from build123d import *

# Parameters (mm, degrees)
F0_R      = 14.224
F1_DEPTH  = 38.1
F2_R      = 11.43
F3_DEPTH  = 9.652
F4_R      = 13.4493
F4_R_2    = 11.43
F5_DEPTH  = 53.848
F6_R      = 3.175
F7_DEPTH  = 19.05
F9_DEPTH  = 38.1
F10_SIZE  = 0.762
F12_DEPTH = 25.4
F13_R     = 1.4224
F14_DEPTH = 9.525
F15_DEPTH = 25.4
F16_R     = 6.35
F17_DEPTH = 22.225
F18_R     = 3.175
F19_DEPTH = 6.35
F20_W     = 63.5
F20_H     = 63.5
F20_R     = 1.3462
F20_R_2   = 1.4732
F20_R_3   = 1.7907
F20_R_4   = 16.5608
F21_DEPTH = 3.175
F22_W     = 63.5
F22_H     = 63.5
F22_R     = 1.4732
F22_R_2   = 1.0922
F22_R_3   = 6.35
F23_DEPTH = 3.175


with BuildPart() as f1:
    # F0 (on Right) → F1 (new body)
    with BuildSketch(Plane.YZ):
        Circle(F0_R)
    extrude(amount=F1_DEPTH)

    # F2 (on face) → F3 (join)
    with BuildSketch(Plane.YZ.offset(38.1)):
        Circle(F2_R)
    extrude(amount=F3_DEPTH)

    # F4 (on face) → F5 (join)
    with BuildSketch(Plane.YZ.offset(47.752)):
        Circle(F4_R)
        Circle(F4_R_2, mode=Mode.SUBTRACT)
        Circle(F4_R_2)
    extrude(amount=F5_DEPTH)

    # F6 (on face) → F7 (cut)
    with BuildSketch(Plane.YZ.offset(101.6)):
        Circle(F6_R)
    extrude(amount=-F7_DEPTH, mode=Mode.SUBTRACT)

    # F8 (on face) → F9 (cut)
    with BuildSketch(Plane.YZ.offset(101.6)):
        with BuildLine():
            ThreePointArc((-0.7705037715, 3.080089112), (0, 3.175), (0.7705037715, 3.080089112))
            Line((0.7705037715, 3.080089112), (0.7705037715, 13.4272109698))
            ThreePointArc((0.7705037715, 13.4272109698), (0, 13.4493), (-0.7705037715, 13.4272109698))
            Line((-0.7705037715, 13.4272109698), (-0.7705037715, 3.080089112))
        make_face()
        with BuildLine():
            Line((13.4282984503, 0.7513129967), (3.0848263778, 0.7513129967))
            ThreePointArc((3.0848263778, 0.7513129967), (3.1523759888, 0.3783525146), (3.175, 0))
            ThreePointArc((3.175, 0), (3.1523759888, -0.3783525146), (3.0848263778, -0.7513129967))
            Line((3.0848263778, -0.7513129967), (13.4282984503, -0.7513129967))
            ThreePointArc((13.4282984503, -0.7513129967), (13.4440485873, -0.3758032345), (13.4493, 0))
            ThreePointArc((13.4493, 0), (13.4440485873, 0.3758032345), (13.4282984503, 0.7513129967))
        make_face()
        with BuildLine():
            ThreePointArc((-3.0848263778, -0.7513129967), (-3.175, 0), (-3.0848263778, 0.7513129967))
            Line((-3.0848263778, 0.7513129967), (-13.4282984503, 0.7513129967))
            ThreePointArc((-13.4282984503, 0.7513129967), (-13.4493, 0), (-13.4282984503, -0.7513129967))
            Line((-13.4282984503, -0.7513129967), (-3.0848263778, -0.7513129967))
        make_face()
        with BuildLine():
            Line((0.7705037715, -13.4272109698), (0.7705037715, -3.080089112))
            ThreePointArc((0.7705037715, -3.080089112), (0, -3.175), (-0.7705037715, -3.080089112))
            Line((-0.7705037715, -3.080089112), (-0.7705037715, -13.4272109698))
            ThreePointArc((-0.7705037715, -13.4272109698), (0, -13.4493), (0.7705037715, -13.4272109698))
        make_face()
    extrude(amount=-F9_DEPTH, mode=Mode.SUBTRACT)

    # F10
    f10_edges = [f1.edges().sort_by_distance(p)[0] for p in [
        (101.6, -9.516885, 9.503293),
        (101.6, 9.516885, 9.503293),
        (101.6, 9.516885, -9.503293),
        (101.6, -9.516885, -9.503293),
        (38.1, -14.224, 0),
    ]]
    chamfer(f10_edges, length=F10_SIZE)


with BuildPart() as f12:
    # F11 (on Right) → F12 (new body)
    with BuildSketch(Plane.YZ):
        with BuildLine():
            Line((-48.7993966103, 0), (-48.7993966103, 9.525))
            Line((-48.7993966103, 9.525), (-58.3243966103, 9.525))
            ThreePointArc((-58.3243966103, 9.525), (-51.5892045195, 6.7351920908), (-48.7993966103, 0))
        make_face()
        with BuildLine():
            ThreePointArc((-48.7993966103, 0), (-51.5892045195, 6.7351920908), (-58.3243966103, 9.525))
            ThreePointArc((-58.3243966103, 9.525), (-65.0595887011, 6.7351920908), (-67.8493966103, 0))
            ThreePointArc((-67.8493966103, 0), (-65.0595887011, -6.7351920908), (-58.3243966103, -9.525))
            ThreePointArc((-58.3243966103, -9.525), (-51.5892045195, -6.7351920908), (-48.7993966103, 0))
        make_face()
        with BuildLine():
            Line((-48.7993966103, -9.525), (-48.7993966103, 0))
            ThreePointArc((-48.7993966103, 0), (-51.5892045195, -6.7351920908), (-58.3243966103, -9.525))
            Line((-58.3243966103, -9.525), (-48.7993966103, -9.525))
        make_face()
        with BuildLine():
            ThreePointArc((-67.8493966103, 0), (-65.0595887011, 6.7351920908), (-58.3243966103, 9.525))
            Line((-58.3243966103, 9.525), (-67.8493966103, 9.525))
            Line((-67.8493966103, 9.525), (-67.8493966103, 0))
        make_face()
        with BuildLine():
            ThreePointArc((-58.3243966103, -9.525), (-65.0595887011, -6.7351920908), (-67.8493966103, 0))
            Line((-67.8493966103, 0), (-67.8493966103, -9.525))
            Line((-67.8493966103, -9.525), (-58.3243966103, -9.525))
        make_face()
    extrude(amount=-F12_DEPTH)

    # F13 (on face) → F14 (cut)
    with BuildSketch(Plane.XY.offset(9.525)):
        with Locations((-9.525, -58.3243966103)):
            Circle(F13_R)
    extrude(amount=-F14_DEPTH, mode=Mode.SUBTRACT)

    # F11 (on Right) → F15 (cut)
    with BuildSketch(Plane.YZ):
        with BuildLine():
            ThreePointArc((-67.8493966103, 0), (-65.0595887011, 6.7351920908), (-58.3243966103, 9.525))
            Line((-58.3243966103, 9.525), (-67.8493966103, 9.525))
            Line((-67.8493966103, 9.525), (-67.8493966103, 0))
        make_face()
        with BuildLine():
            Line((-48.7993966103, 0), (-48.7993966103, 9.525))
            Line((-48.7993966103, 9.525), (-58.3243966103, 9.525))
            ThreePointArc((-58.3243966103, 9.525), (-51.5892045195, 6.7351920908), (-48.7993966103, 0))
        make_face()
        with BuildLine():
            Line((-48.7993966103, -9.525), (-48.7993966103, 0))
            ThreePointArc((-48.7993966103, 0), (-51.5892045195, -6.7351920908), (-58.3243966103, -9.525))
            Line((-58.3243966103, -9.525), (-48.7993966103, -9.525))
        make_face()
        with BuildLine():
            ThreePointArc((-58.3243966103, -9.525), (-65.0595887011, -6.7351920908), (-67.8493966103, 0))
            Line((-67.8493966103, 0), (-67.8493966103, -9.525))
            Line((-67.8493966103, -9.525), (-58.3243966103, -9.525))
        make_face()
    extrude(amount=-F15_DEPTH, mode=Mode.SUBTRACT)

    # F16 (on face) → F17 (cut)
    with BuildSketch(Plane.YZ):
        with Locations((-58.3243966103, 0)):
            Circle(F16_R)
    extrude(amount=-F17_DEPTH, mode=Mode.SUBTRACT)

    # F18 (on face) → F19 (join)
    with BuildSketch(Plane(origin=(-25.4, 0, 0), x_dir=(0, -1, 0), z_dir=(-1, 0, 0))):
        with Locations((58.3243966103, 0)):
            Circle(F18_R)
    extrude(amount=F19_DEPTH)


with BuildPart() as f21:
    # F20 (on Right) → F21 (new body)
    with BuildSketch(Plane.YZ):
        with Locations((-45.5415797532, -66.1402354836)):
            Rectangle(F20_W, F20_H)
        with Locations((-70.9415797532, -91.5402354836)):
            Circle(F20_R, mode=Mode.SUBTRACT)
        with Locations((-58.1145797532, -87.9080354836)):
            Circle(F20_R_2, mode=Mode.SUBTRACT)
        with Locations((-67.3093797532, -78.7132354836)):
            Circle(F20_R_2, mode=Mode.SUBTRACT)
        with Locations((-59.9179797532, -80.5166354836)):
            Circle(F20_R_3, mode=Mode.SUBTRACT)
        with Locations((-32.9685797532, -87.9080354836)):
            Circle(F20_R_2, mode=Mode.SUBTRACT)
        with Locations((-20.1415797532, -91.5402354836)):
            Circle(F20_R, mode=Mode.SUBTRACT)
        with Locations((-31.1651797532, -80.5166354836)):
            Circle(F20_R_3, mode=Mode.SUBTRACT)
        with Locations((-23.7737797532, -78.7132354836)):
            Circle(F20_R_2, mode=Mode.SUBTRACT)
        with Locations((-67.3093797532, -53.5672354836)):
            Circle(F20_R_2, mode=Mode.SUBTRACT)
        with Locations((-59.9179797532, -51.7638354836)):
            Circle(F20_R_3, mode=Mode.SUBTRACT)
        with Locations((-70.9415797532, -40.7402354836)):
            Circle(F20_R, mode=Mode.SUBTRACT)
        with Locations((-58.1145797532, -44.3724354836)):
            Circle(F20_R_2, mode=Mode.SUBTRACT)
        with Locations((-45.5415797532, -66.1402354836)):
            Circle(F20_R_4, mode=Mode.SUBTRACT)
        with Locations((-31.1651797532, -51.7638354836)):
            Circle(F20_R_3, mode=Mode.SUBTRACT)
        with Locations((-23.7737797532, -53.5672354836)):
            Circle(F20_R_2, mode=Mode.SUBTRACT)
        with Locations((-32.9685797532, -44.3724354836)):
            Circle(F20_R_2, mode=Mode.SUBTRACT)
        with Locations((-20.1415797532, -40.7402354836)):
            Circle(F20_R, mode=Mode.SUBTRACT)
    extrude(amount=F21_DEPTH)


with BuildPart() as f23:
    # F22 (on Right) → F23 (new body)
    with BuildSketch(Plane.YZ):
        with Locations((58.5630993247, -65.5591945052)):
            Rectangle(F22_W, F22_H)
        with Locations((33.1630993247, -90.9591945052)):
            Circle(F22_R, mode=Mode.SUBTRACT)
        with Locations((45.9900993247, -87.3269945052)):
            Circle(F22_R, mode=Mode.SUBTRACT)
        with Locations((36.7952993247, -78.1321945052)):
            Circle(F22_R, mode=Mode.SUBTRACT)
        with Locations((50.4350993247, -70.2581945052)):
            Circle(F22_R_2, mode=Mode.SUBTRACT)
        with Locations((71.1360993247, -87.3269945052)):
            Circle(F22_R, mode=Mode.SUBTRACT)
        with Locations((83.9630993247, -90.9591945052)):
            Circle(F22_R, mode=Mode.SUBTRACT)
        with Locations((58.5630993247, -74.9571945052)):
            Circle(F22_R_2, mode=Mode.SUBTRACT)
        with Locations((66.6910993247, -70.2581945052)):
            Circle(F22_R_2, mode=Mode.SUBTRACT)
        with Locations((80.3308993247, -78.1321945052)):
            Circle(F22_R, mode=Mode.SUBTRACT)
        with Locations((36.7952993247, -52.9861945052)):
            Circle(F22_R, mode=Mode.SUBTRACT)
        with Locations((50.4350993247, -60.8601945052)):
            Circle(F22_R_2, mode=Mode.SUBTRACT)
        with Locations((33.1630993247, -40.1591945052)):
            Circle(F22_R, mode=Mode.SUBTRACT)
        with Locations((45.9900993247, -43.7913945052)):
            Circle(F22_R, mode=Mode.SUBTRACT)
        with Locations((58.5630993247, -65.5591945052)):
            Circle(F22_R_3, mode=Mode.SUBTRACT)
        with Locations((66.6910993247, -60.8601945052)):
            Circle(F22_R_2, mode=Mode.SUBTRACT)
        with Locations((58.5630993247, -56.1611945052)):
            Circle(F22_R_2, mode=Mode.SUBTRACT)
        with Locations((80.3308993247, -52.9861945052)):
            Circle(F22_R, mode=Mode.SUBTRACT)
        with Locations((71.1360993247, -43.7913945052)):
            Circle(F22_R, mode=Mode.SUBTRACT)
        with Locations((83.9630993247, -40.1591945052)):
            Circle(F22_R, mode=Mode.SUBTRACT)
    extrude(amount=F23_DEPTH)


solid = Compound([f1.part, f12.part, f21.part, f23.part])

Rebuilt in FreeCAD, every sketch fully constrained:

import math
import FreeCAD as App
import Part
import Sketcher
from FreeCAD import Vector
Q = App.Units.Quantity


def edges_at(feature, points):
    """Names of the edges that pass closest to the given points."""
    edges = feature.Shape.Edges
    near = lambda p: min(range(len(edges)), key=lambda i: edges[i].distToShape(Part.Vertex(*p))[0])
    return sorted({f"Edge{near(p) + 1}" for p in points})

doc = App.newDocument("Part")
body = doc.addObject("PartDesign::Body", "Body")

sketch1 = body.newObject("Sketcher::SketchObject", "Sketch")
sketch1.AttachmentSupport = (doc.getObject("YZ_Plane"), [""])
sketch1.MapMode = "FlatFace"
sketch1.addGeometry(Part.Circle(Vector(0, 0, 0), Vector(0, 0, 1), 14.224), False)
sketch1.addConstraint(Sketcher.Constraint("Coincident", 0, 3, -1, 1))
sketch1.addConstraint(Sketcher.Constraint("Diameter", 0, Q("1.12 in")))
pad1 = body.newObject("PartDesign::Pad", "Pad")
pad1.Profile = sketch1
pad1.Length = Q("1.5 in")

sketch2 = body.newObject("Sketcher::SketchObject", "Sketch001")
sketch2.AttachmentSupport = (doc.getObject("YZ_Plane"), [""])
sketch2.MapMode = "FlatFace"
sketch2.AttachmentOffset = App.Placement(Vector(0, 0, 1.5 * 25.4), App.Rotation())
sketch2.addGeometry(Part.Circle(Vector(0, 0, 0), Vector(0, 0, 1), 11.43), False)
sketch2.addConstraint(Sketcher.Constraint("Coincident", 0, 3, -1, 1))
sketch2.addConstraint(Sketcher.Constraint("Diameter", 0, Q("0.9 in")))
pad2 = body.newObject("PartDesign::Pad", "Pad001")
pad2.Profile = sketch2
pad2.Length = Q("0.38 in")

sketch3 = body.newObject("Sketcher::SketchObject", "Sketch002")
sketch3.AttachmentSupport = (doc.getObject("YZ_Plane"), [""])
sketch3.MapMode = "FlatFace"
sketch3.AttachmentOffset = App.Placement(Vector(0, 0, 1.88 * 25.4), App.Rotation())
sketch3.addGeometry(Part.Circle(Vector(0, 0, 0), Vector(0, 0, 1), 13.4493), False)
sketch3.addConstraint(Sketcher.Constraint("Coincident", 0, 3, -1, 1))
sketch3.addConstraint(Sketcher.Constraint("Diameter", 0, Q("1.059 in")))
pad3 = body.newObject("PartDesign::Pad", "Pad002")
pad3.Profile = sketch3
pad3.Length = Q("2.12 in")

sketch4 = body.newObject("Sketcher::SketchObject", "Sketch003")
sketch4.AttachmentSupport = (doc.getObject("YZ_Plane"), [""])
sketch4.MapMode = "FlatFace"
sketch4.AttachmentOffset = App.Placement(Vector(0, 0, 4 * 25.4), App.Rotation())
sketch4.addGeometry(Part.Circle(Vector(0, 0, 0), Vector(0, 0, 1), 3.175), False)
sketch4.addConstraint(Sketcher.Constraint("Coincident", 0, 3, -1, 1))
sketch4.addConstraint(Sketcher.Constraint("Diameter", 0, Q("0.25 in")))
pocket1 = body.newObject("PartDesign::Pocket", "Pocket")
pocket1.Profile = sketch4
pocket1.Length = Q("0.75 in")

sketch5 = body.newObject("Sketcher::SketchObject", "Sketch004")
sketch5.AttachmentSupport = (doc.getObject("YZ_Plane"), [""])
sketch5.MapMode = "FlatFace"
sketch5.AttachmentOffset = App.Placement(Vector(0, 0, 4 * 25.4), App.Rotation())
sketch5.addGeometry(Part.ArcOfCircle(Part.Circle(Vector(0, 0, 0), Vector(0, 0, 1), 3.175), math.radians(75.955327), math.radians(104.044673)), False)
sketch5.addGeometry(Part.LineSegment(Vector(0.770504, 3.080089, 0), Vector(0.770504, 13.427211, 0)), False)
sketch5.addGeometry(Part.ArcOfCircle(Part.Circle(Vector(0, 0, 0), Vector(0, 0, 1), 13.4493), math.radians(86.715755), math.radians(93.284245)), False)
sketch5.addGeometry(Part.LineSegment(Vector(-0.770504, 13.427211, 0), Vector(-0.770504, 3.080089, 0)), False)
sketch5.addGeometry(Part.LineSegment(Vector(13.428298, 0.751313, 0), Vector(3.084826, 0.751313, 0)), False)
sketch5.addGeometry(Part.ArcOfCircle(Part.Circle(Vector(0, 0, 0), Vector(0, 0, 1), 3.175), math.radians(0), math.radians(13.687962)), False)
sketch5.addGeometry(Part.ArcOfCircle(Part.Circle(Vector(0, 0, 0), Vector(0, 0, 1), 3.175), math.radians(-13.687962), math.radians(0)), False)
sketch5.addGeometry(Part.LineSegment(Vector(3.084826, -0.751313, 0), Vector(13.428298, -0.751313, 0)), False)
sketch5.addGeometry(Part.ArcOfCircle(Part.Circle(Vector(0, 0, 0), Vector(0, 0, 1), 13.4493), math.radians(-3.202359), math.radians(0)), False)
sketch5.addGeometry(Part.ArcOfCircle(Part.Circle(Vector(0, 0, 0), Vector(0, 0, 1), 13.4493), math.radians(0), math.radians(3.202359)), False)
sketch5.addGeometry(Part.ArcOfCircle(Part.Circle(Vector(0, 0, 0), Vector(0, 0, 1), 3.175), math.radians(166.312038), math.radians(193.687962)), False)
sketch5.addGeometry(Part.LineSegment(Vector(-3.084826, 0.751313, 0), Vector(-13.428298, 0.751313, 0)), False)
sketch5.addGeometry(Part.ArcOfCircle(Part.Circle(Vector(0, 0, 0), Vector(0, 0, 1), 13.4493), math.radians(176.797641), math.radians(183.202359)), False)
sketch5.addGeometry(Part.LineSegment(Vector(-13.428298, -0.751313, 0), Vector(-3.084826, -0.751313, 0)), False)
sketch5.addGeometry(Part.LineSegment(Vector(0.770504, -13.427211, 0), Vector(0.770504, -3.080089, 0)), False)
sketch5.addGeometry(Part.ArcOfCircle(Part.Circle(Vector(0, 0, 0), Vector(0, 0, 1), 3.175), math.radians(-104.044673), math.radians(-75.955327)), False)
sketch5.addGeometry(Part.LineSegment(Vector(-0.770504, -3.080089, 0), Vector(-0.770504, -13.427211, 0)), False)
sketch5.addGeometry(Part.ArcOfCircle(Part.Circle(Vector(0, 0, 0), Vector(0, 0, 1), 13.4493), math.radians(-93.284245), math.radians(-86.715755)), False)
sketch5.addConstraint(Sketcher.Constraint("Coincident", 0, 1, 1, 1))
sketch5.addConstraint(Sketcher.Constraint("Coincident", 1, 2, 2, 1))
sketch5.addConstraint(Sketcher.Constraint("Coincident", 2, 2, 3, 1))
sketch5.addConstraint(Sketcher.Constraint("Coincident", 3, 2, 0, 2))
sketch5.addConstraint(Sketcher.Constraint("Coincident", 4, 2, 5, 2))
sketch5.addConstraint(Sketcher.Constraint("Tangent", 5, 1, 6, 2))
sketch5.addConstraint(Sketcher.Constraint("Coincident", 6, 1, 7, 1))
sketch5.addConstraint(Sketcher.Constraint("Coincident", 7, 2, 8, 1))
sketch5.addConstraint(Sketcher.Constraint("Tangent", 8, 2, 9, 1))
sketch5.addConstraint(Sketcher.Constraint("Coincident", 9, 2, 4, 1))
sketch5.addConstraint(Sketcher.Constraint("Coincident", 10, 1, 11, 1))
sketch5.addConstraint(Sketcher.Constraint("Coincident", 11, 2, 12, 1))
sketch5.addConstraint(Sketcher.Constraint("Coincident", 12, 2, 13, 1))
sketch5.addConstraint(Sketcher.Constraint("Coincident", 13, 2, 10, 2))
sketch5.addConstraint(Sketcher.Constraint("Coincident", 14, 2, 15, 2))
sketch5.addConstraint(Sketcher.Constraint("Coincident", 15, 1, 16, 1))
sketch5.addConstraint(Sketcher.Constraint("Coincident", 16, 2, 17, 1))
sketch5.addConstraint(Sketcher.Constraint("Coincident", 17, 2, 14, 1))
sketch5.addConstraint(Sketcher.Constraint("Vertical", 1))
sketch5.addConstraint(Sketcher.Constraint("Vertical", 3))
sketch5.addConstraint(Sketcher.Constraint("Horizontal", 4))
sketch5.addConstraint(Sketcher.Constraint("Horizontal", 7))
sketch5.addConstraint(Sketcher.Constraint("Horizontal", 11))
sketch5.addConstraint(Sketcher.Constraint("Horizontal", 13))
sketch5.addConstraint(Sketcher.Constraint("Vertical", 14))
sketch5.addConstraint(Sketcher.Constraint("Vertical", 16))
sketch5.addConstraint(Sketcher.Constraint("Coincident", 0, 3, -1, 1))
sketch5.addConstraint(Sketcher.Constraint("Coincident", 2, 3, -1, 1))
sketch5.addConstraint(Sketcher.Constraint("Coincident", 5, 3, -1, 1))
sketch5.addConstraint(Sketcher.Constraint("Coincident", 8, 3, -1, 1))
sketch5.addConstraint(Sketcher.Constraint("Coincident", 10, 3, -1, 1))
sketch5.addConstraint(Sketcher.Constraint("Coincident", 12, 3, -1, 1))
sketch5.addConstraint(Sketcher.Constraint("Coincident", 15, 3, -1, 1))
sketch5.addConstraint(Sketcher.Constraint("Coincident", 17, 3, -1, 1))
sketch5.addConstraint(Sketcher.Constraint("Equal", 0, 5))
sketch5.addConstraint(Sketcher.Constraint("Equal", 5, 6))
sketch5.addConstraint(Sketcher.Constraint("Equal", 2, 8))
sketch5.addConstraint(Sketcher.Constraint("Equal", 8, 9))
sketch5.addConstraint(Sketcher.Constraint("Equal", 6, 10))
sketch5.addConstraint(Sketcher.Constraint("Equal", 9, 12))
sketch5.addConstraint(Sketcher.Constraint("Equal", 10, 15))
sketch5.addConstraint(Sketcher.Constraint("Equal", 12, 17))
sketch5.addConstraint(Sketcher.Constraint("PointOnObject", 5, 1, -1))
sketch5.addConstraint(Sketcher.Constraint("PointOnObject", 8, 2, -1))
sketch5.addConstraint(Sketcher.Constraint("Horizontal", 1, 2, 2, 2))
sketch5.addConstraint(Sketcher.Constraint("Horizontal", 9, 2, 10, 1))
sketch5.addConstraint(Sketcher.Constraint("Horizontal", 7, 2, 12, 2))
sketch5.addConstraint(Sketcher.Constraint("Horizontal", 14, 2, 15, 1))
sketch5.addConstraint(Sketcher.Constraint("Vertical", 4, 2, 6, 1))
sketch5.addConstraint(Sketcher.Constraint("Vertical", 1, 2, 14, 2))
sketch5.addConstraint(Sketcher.Constraint("Radius", 0, Q("0.125 in")))
sketch5.addConstraint(Sketcher.Constraint("Radius", 2, Q("0.5295 in")))
sketch5.addConstraint(Sketcher.Constraint("DistanceY", 1, 1, 1, 2, 10.347122))
sketch5.addConstraint(Sketcher.Constraint("DistanceX", -1, 1, 7, 2, 13.428298))
pocket2 = body.newObject("PartDesign::Pocket", "Pocket001")
pocket2.Profile = sketch5
pocket2.Length = Q("1.5 in")
doc.recompute()

chamfer = body.newObject("PartDesign::Chamfer", "Chamfer")
chamfer.Base = (pocket2, edges_at(pocket2, [
    (101.6, -9.517, 9.503),
    (101.6, 9.517, 9.503),
    (101.6, 9.517, -9.503),
    (101.6, -9.517, -9.503),
    (38.1, -14.224, 0),
]))
chamfer.Size = Q("0.03 in")
body2 = doc.addObject("PartDesign::Body", "Body001")

sketch6 = body2.newObject("Sketcher::SketchObject", "Sketch005")
sketch6.AttachmentSupport = (doc.getObject("YZ_Plane001"), [""])
sketch6.MapMode = "FlatFace"
sketch6.addGeometry(Part.LineSegment(Vector(-48.799397, 9.525, 0), Vector(-67.849397, 9.525, 0)), False)
sketch6.addGeometry(Part.LineSegment(Vector(-67.849397, 9.525, 0), Vector(-67.849397, -9.525, 0)), False)
sketch6.addGeometry(Part.LineSegment(Vector(-67.849397, -9.525, 0), Vector(-48.799397, -9.525, 0)), False)
sketch6.addGeometry(Part.LineSegment(Vector(-48.799397, -9.525, 0), Vector(-48.799397, 9.525, 0)), False)
sketch6.addConstraint(Sketcher.Constraint("Coincident", 0, 2, 1, 1))
sketch6.addConstraint(Sketcher.Constraint("Coincident", 1, 2, 2, 1))
sketch6.addConstraint(Sketcher.Constraint("Coincident", 2, 2, 3, 1))
sketch6.addConstraint(Sketcher.Constraint("Coincident", 3, 2, 0, 1))
sketch6.addConstraint(Sketcher.Constraint("Horizontal", 0))
sketch6.addConstraint(Sketcher.Constraint("Vertical", 1))
sketch6.addConstraint(Sketcher.Constraint("Horizontal", 2))
sketch6.addConstraint(Sketcher.Constraint("Vertical", 3))
sketch6.addConstraint(Sketcher.Constraint("Equal", 2, 1))
sketch6.addConstraint(Sketcher.Constraint("DistanceX", 0, 2, 0, 1, Q("0.75 in")))
sketch6.addConstraint(Sketcher.Constraint("DistanceY", -1, 1, 0, 2, Q("0.375 in")))
sketch6.addConstraint(Sketcher.Constraint("DistanceX", 0, 2, -1, 1, 67.849397))
pad4 = body2.newObject("PartDesign::Pad", "Pad003")
pad4.Profile = sketch6
pad4.Length = Q("1 in")
pad4.Reversed = True

sketch7 = body2.newObject("Sketcher::SketchObject", "Sketch006")
sketch7.AttachmentSupport = (doc.getObject("XY_Plane001"), [""])
sketch7.MapMode = "FlatFace"
sketch7.AttachmentOffset = App.Placement(Vector(0, 0, 0.375 * 25.4), App.Rotation())
sketch7.addGeometry(Part.Circle(Vector(-9.525, -58.324397, 0), Vector(0, 0, 1), 1.4224), False)
sketch7.addConstraint(Sketcher.Constraint("Diameter", 0, Q("0.112 in")))
sketch7.addConstraint(Sketcher.Constraint("DistanceX", 0, 3, -1, 1, Q("0.375 in")))
sketch7.addConstraint(Sketcher.Constraint("DistanceY", 0, 3, -1, 1, 58.324397))
pocket3 = body2.newObject("PartDesign::Pocket", "Pocket002")
pocket3.Profile = sketch7
pocket3.Length = Q("0.375 in")

sketch8 = body2.newObject("Sketcher::SketchObject", "Sketch007")
sketch8.AttachmentSupport = (doc.getObject("YZ_Plane001"), [""])
sketch8.MapMode = "FlatFace"
sketch8.addGeometry(Part.ArcOfCircle(Part.Circle(Vector(-58.324397, 0, 0), Vector(0, 0, 1), 9.525), math.radians(90), math.radians(180)), False)
sketch8.addGeometry(Part.LineSegment(Vector(-58.324397, 9.525, 0), Vector(-67.849397, 9.525, 0)), False)
sketch8.addGeometry(Part.LineSegment(Vector(-67.849397, 9.525, 0), Vector(-67.849397, 0, 0)), False)
sketch8.addGeometry(Part.LineSegment(Vector(-48.799397, 0, 0), Vector(-48.799397, 9.525, 0)), False)
sketch8.addGeometry(Part.LineSegment(Vector(-48.799397, 9.525, 0), Vector(-58.324397, 9.525, 0)), False)
sketch8.addGeometry(Part.ArcOfCircle(Part.Circle(Vector(-58.324397, 0, 0), Vector(0, 0, 1), 9.525), math.radians(0), math.radians(90)), False)
sketch8.addGeometry(Part.LineSegment(Vector(-48.799397, -9.525, 0), Vector(-48.799397, 0, 0)), False)
sketch8.addGeometry(Part.ArcOfCircle(Part.Circle(Vector(-58.324397, 0, 0), Vector(0, 0, 1), 9.525), math.radians(-90), math.radians(0)), False)
sketch8.addGeometry(Part.LineSegment(Vector(-58.324397, -9.525, 0), Vector(-48.799397, -9.525, 0)), False)
sketch8.addGeometry(Part.ArcOfCircle(Part.Circle(Vector(-58.324397, 0, 0), Vector(0, 0, 1), 9.525), math.radians(180), math.radians(270)), False)
sketch8.addGeometry(Part.LineSegment(Vector(-67.849397, 0, 0), Vector(-67.849397, -9.525, 0)), False)
sketch8.addGeometry(Part.LineSegment(Vector(-67.849397, -9.525, 0), Vector(-58.324397, -9.525, 0)), False)
sketch8.addConstraint(Sketcher.Constraint("Tangent", 0, 1, 1, 1))
sketch8.addConstraint(Sketcher.Constraint("Coincident", 1, 2, 2, 1))
sketch8.addConstraint(Sketcher.Constraint("Tangent", 2, 2, 0, 2))
sketch8.addConstraint(Sketcher.Constraint("Coincident", 3, 2, 4, 1))
sketch8.addConstraint(Sketcher.Constraint("Tangent", 4, 2, 5, 2))
sketch8.addConstraint(Sketcher.Constraint("Tangent", 5, 1, 3, 1))
sketch8.addConstraint(Sketcher.Constraint("Tangent", 6, 2, 7, 2))
sketch8.addConstraint(Sketcher.Constraint("Tangent", 7, 1, 8, 1))
sketch8.addConstraint(Sketcher.Constraint("Coincident", 8, 2, 6, 1))
sketch8.addConstraint(Sketcher.Constraint("Tangent", 9, 1, 10, 1))
sketch8.addConstraint(Sketcher.Constraint("Coincident", 10, 2, 11, 1))
sketch8.addConstraint(Sketcher.Constraint("Tangent", 11, 2, 9, 2))
sketch8.addConstraint(Sketcher.Constraint("Horizontal", 1))
sketch8.addConstraint(Sketcher.Constraint("Vertical", 2))
sketch8.addConstraint(Sketcher.Constraint("Vertical", 3))
sketch8.addConstraint(Sketcher.Constraint("Horizontal", 4))
sketch8.addConstraint(Sketcher.Constraint("Vertical", 6))
sketch8.addConstraint(Sketcher.Constraint("Horizontal", 8))
sketch8.addConstraint(Sketcher.Constraint("Vertical", 10))
sketch8.addConstraint(Sketcher.Constraint("Horizontal", 11))
sketch8.addConstraint(Sketcher.Constraint("Coincident", 5, 3, 0, 3))
sketch8.addConstraint(Sketcher.Constraint("Coincident", 7, 3, 0, 3))
sketch8.addConstraint(Sketcher.Constraint("Coincident", 9, 3, 0, 3))
sketch8.addConstraint(Sketcher.Constraint("Equal", 0, 5))
sketch8.addConstraint(Sketcher.Constraint("Equal", 5, 7))
sketch8.addConstraint(Sketcher.Constraint("Equal", 7, 9))
sketch8.addConstraint(Sketcher.Constraint("PointOnObject", 0, 3, -1))
sketch8.addConstraint(Sketcher.Constraint("Radius", 0, Q("0.375 in")))
sketch8.addConstraint(Sketcher.Constraint("DistanceX", 0, 3, -1, 1, 58.324397))
pocket4 = body2.newObject("PartDesign::Pocket", "Pocket003")
pocket4.Profile = sketch8
pocket4.Length = Q("1 in")

sketch9 = body2.newObject("Sketcher::SketchObject", "Sketch008")
sketch9.AttachmentSupport = (doc.getObject("YZ_Plane001"), [""])
sketch9.MapMode = "FlatFace"
sketch9.addGeometry(Part.Circle(Vector(-58.324397, 0, 0), Vector(0, 0, 1), 6.35), False)
sketch9.addConstraint(Sketcher.Constraint("PointOnObject", 0, 3, -1))
sketch9.addConstraint(Sketcher.Constraint("Diameter", 0, Q("0.5 in")))
sketch9.addConstraint(Sketcher.Constraint("DistanceX", 0, 3, -1, 1, 58.324397))
pocket5 = body2.newObject("PartDesign::Pocket", "Pocket004")
pocket5.Profile = sketch9
pocket5.Length = Q("0.875 in")

sketch10 = body2.newObject("Sketcher::SketchObject", "Sketch009")
sketch10.AttachmentSupport = (doc.getObject("YZ_Plane001"), [""])
sketch10.MapMode = "FlatFace"
sketch10.AttachmentOffset = App.Placement(Vector(0, 0, -1 * 25.4), App.Rotation())
sketch10.addGeometry(Part.Circle(Vector(-58.324397, 0, 0), Vector(0, 0, 1), 3.175), False)
sketch10.addConstraint(Sketcher.Constraint("PointOnObject", 0, 3, -1))
sketch10.addConstraint(Sketcher.Constraint("Diameter", 0, Q("0.25 in")))
sketch10.addConstraint(Sketcher.Constraint("DistanceX", 0, 3, -1, 1, 58.324397))
pad5 = body2.newObject("PartDesign::Pad", "Pad004")
pad5.Profile = sketch10
pad5.Length = Q("0.25 in")
pad5.Reversed = True
body3 = doc.addObject("PartDesign::Body", "Body002")

sketch11 = body3.newObject("Sketcher::SketchObject", "Sketch010")
sketch11.AttachmentSupport = (doc.getObject("YZ_Plane002"), [""])
sketch11.MapMode = "FlatFace"
sketch11.addGeometry(Part.LineSegment(Vector(-77.29158, -34.390235, 0), Vector(-77.29158, -97.890235, 0)), False)
sketch11.addGeometry(Part.LineSegment(Vector(-77.29158, -97.890235, 0), Vector(-13.79158, -97.890235, 0)), False)
sketch11.addGeometry(Part.LineSegment(Vector(-13.79158, -97.890235, 0), Vector(-13.79158, -34.390235, 0)), False)
sketch11.addGeometry(Part.LineSegment(Vector(-13.79158, -34.390235, 0), Vector(-77.29158, -34.390235, 0)), False)
sketch11.addGeometry(Part.Circle(Vector(-70.94158, -91.540235, 0), Vector(0, 0, 1), 1.3462), False)
sketch11.addGeometry(Part.Circle(Vector(-59.91798, -80.516635, 0), Vector(0, 0, 1), 1.7907), False)
sketch11.addGeometry(Part.Circle(Vector(-58.11458, -87.908035, 0), Vector(0, 0, 1), 1.4732), False)
sketch11.addGeometry(Part.Circle(Vector(-67.30938, -78.713235, 0), Vector(0, 0, 1), 1.4732), False)
sketch11.addGeometry(Part.Circle(Vector(-32.96858, -87.908035, 0), Vector(0, 0, 1), 1.4732), False)
sketch11.addGeometry(Part.Circle(Vector(-20.14158, -91.540235, 0), Vector(0, 0, 1), 1.3462), False)
sketch11.addGeometry(Part.Circle(Vector(-31.16518, -80.516635, 0), Vector(0, 0, 1), 1.7907), False)
sketch11.addGeometry(Part.Circle(Vector(-23.77378, -78.713235, 0), Vector(0, 0, 1), 1.4732), False)
sketch11.addGeometry(Part.Circle(Vector(-67.30938, -53.567235, 0), Vector(0, 0, 1), 1.4732), False)
sketch11.addGeometry(Part.Circle(Vector(-59.91798, -51.763835, 0), Vector(0, 0, 1), 1.7907), False)
sketch11.addGeometry(Part.Circle(Vector(-70.94158, -40.740235, 0), Vector(0, 0, 1), 1.3462), False)
sketch11.addGeometry(Part.Circle(Vector(-58.11458, -44.372435, 0), Vector(0, 0, 1), 1.4732), False)
sketch11.addGeometry(Part.Circle(Vector(-45.54158, -66.140235, 0), Vector(0, 0, 1), 16.5608), False)
sketch11.addGeometry(Part.Circle(Vector(-23.77378, -53.567235, 0), Vector(0, 0, 1), 1.4732), False)
sketch11.addGeometry(Part.Circle(Vector(-32.96858, -44.372435, 0), Vector(0, 0, 1), 1.4732), False)
sketch11.addGeometry(Part.Circle(Vector(-31.16518, -51.763835, 0), Vector(0, 0, 1), 1.7907), False)
sketch11.addGeometry(Part.Circle(Vector(-20.14158, -40.740235, 0), Vector(0, 0, 1), 1.3462), False)
sketch11.addConstraint(Sketcher.Constraint("Coincident", 0, 2, 1, 1))
sketch11.addConstraint(Sketcher.Constraint("Coincident", 1, 2, 2, 1))
sketch11.addConstraint(Sketcher.Constraint("Coincident", 2, 2, 3, 1))
sketch11.addConstraint(Sketcher.Constraint("Coincident", 3, 2, 0, 1))
sketch11.addConstraint(Sketcher.Constraint("Vertical", 0))
sketch11.addConstraint(Sketcher.Constraint("Horizontal", 1))
sketch11.addConstraint(Sketcher.Constraint("Vertical", 2))
sketch11.addConstraint(Sketcher.Constraint("Horizontal", 3))
sketch11.addConstraint(Sketcher.Constraint("Equal", 6, 7))
sketch11.addConstraint(Sketcher.Constraint("Equal", 7, 8))
sketch11.addConstraint(Sketcher.Constraint("Equal", 4, 9))
sketch11.addConstraint(Sketcher.Constraint("Equal", 5, 10))
sketch11.addConstraint(Sketcher.Constraint("Equal", 8, 11))
sketch11.addConstraint(Sketcher.Constraint("Equal", 11, 12))
sketch11.addConstraint(Sketcher.Constraint("Equal", 10, 13))
sketch11.addConstraint(Sketcher.Constraint("Equal", 9, 14))
sketch11.addConstraint(Sketcher.Constraint("Equal", 12, 15))
sketch11.addConstraint(Sketcher.Constraint("Equal", 15, 17))
sketch11.addConstraint(Sketcher.Constraint("Equal", 17, 18))
sketch11.addConstraint(Sketcher.Constraint("Equal", 13, 19))
sketch11.addConstraint(Sketcher.Constraint("Equal", 14, 20))
sketch11.addConstraint(Sketcher.Constraint("Horizontal", 6, 3, 8, 3))
sketch11.addConstraint(Sketcher.Constraint("Horizontal", 4, 3, 9, 3))
sketch11.addConstraint(Sketcher.Constraint("Horizontal", 5, 3, 10, 3))
sketch11.addConstraint(Sketcher.Constraint("Horizontal", 7, 3, 11, 3))
sketch11.addConstraint(Sketcher.Constraint("Horizontal", 12, 3, 17, 3))
sketch11.addConstraint(Sketcher.Constraint("Horizontal", 15, 3, 18, 3))
sketch11.addConstraint(Sketcher.Constraint("Horizontal", 13, 3, 19, 3))
sketch11.addConstraint(Sketcher.Constraint("Horizontal", 14, 3, 20, 3))
sketch11.addConstraint(Sketcher.Constraint("Vertical", 7, 3, 12, 3))
sketch11.addConstraint(Sketcher.Constraint("Vertical", 5, 3, 13, 3))
sketch11.addConstraint(Sketcher.Constraint("Vertical", 4, 3, 14, 3))
sketch11.addConstraint(Sketcher.Constraint("Vertical", 6, 3, 15, 3))
sketch11.addConstraint(Sketcher.Constraint("Vertical", 11, 3, 17, 3))
sketch11.addConstraint(Sketcher.Constraint("Vertical", 8, 3, 18, 3))
sketch11.addConstraint(Sketcher.Constraint("Vertical", 10, 3, 19, 3))
sketch11.addConstraint(Sketcher.Constraint("Vertical", 9, 3, 20, 3))
sketch11.addConstraint(Sketcher.Constraint("Equal", 3, 0))
sketch11.addConstraint(Sketcher.Constraint("Diameter", 4, Q("0.106 in")))
sketch11.addConstraint(Sketcher.Constraint("Diameter", 5, Q("0.141 in")))
sketch11.addConstraint(Sketcher.Constraint("Diameter", 6, Q("0.116 in")))
sketch11.addConstraint(Sketcher.Constraint("Diameter", 16, Q("1.304 in")))
sketch11.addConstraint(Sketcher.Constraint("DistanceX", 1, 1, 1, 2, Q("2.5 in")))
sketch11.addConstraint(Sketcher.Constraint("DistanceX", 4, 3, 9, 3, Q("2 in")))
sketch11.addConstraint(Sketcher.Constraint("DistanceX", 16, 3, 20, 3, Q("1 in")))
sketch11.addConstraint(Sketcher.Constraint("DistanceY", 16, 3, 20, 3, Q("1 in")))
sketch11.addConstraint(Sketcher.Constraint("DistanceX", 6, 3, 8, 3, Q("0.99 in")))
sketch11.addConstraint(Sketcher.Constraint("DistanceY", 7, 3, 12, 3, Q("0.99 in")))
sketch11.addConstraint(Sketcher.Constraint("DistanceX", 0, 2, 4, 3, Q("0.25 in")))
sketch11.addConstraint(Sketcher.Constraint("DistanceY", 0, 2, 4, 3, Q("0.25 in")))
sketch11.addConstraint(Sketcher.Constraint("DistanceY", 0, 2, 16, 3, Q("1.25 in")))
sketch11.addConstraint(Sketcher.Constraint("DistanceX", 4, 3, 5, 3, Q("0.434 in")))
sketch11.addConstraint(Sketcher.Constraint("DistanceY", 4, 3, 5, 3, Q("0.434 in")))
sketch11.addConstraint(Sketcher.Constraint("DistanceX", 5, 3, 6, 3, Q("0.071 in")))
sketch11.addConstraint(Sketcher.Constraint("DistanceY", 6, 3, 5, 3, Q("0.291 in")))
sketch11.addConstraint(Sketcher.Constraint("DistanceX", 7, 3, 5, 3, Q("0.291 in")))
sketch11.addConstraint(Sketcher.Constraint("DistanceY", 5, 3, 7, 3, Q("0.071 in")))
sketch11.addConstraint(Sketcher.Constraint("DistanceX", 8, 3, 10, 3, Q("0.071 in")))
sketch11.addConstraint(Sketcher.Constraint("DistanceX", 10, 3, 11, 3, Q("0.291 in")))
sketch11.addConstraint(Sketcher.Constraint("DistanceY", 12, 3, 13, 3, Q("0.071 in")))
sketch11.addConstraint(Sketcher.Constraint("DistanceY", 13, 3, 15, 3, Q("0.291 in")))
sketch11.addConstraint(Sketcher.Constraint("DistanceX", 4, 3, -1, 1, 70.94158))
sketch11.addConstraint(Sketcher.Constraint("DistanceY", 4, 3, -1, 1, 91.540235))
pad6 = body3.newObject("PartDesign::Pad", "Pad005")
pad6.Profile = sketch11
pad6.Length = Q("0.125 in")
body4 = doc.addObject("PartDesign::Body", "Body003")

sketch12 = body4.newObject("Sketcher::SketchObject", "Sketch011")
sketch12.AttachmentSupport = (doc.getObject("YZ_Plane003"), [""])
sketch12.MapMode = "FlatFace"
sketch12.addGeometry(Part.LineSegment(Vector(26.813099, -33.809195, 0), Vector(26.813099, -97.309195, 0)), False)
sketch12.addGeometry(Part.LineSegment(Vector(26.813099, -97.309195, 0), Vector(90.313099, -97.309195, 0)), False)
sketch12.addGeometry(Part.LineSegment(Vector(90.313099, -97.309195, 0), Vector(90.313099, -33.809195, 0)), False)
sketch12.addGeometry(Part.LineSegment(Vector(90.313099, -33.809195, 0), Vector(26.813099, -33.809195, 0)), False)
sketch12.addGeometry(Part.Circle(Vector(33.163099, -90.959195, 0), Vector(0, 0, 1), 1.4732), False)
sketch12.addGeometry(Part.Circle(Vector(45.990099, -87.326995, 0), Vector(0, 0, 1), 1.4732), False)
sketch12.addGeometry(Part.Circle(Vector(36.795299, -78.132195, 0), Vector(0, 0, 1), 1.4732), False)
sketch12.addGeometry(Part.Circle(Vector(58.563099, -74.957195, 0), Vector(0, 0, 1), 1.0922), False)
sketch12.addGeometry(Part.Circle(Vector(50.435099, -70.258195, 0), Vector(0, 0, 1), 1.0922), False)
sketch12.addGeometry(Part.Circle(Vector(71.136099, -87.326995, 0), Vector(0, 0, 1), 1.4732), False)
sketch12.addGeometry(Part.Circle(Vector(83.963099, -90.959195, 0), Vector(0, 0, 1), 1.4732), False)
sketch12.addGeometry(Part.Circle(Vector(66.691099, -70.258195, 0), Vector(0, 0, 1), 1.0922), False)
sketch12.addGeometry(Part.Circle(Vector(80.330899, -78.132195, 0), Vector(0, 0, 1), 1.4732), False)
sketch12.addGeometry(Part.Circle(Vector(36.795299, -52.986195, 0), Vector(0, 0, 1), 1.4732), False)
sketch12.addGeometry(Part.Circle(Vector(50.435099, -60.860195, 0), Vector(0, 0, 1), 1.0922), False)
sketch12.addGeometry(Part.Circle(Vector(58.563099, -65.559195, 0), Vector(0, 0, 1), 6.35), False)
sketch12.addGeometry(Part.Circle(Vector(58.563099, -56.161195, 0), Vector(0, 0, 1), 1.0922), False)
sketch12.addGeometry(Part.Circle(Vector(33.163099, -40.159195, 0), Vector(0, 0, 1), 1.4732), False)
sketch12.addGeometry(Part.Circle(Vector(45.990099, -43.791395, 0), Vector(0, 0, 1), 1.4732), False)
sketch12.addGeometry(Part.Circle(Vector(66.691099, -60.860195, 0), Vector(0, 0, 1), 1.0922), False)
sketch12.addGeometry(Part.Circle(Vector(80.330899, -52.986195, 0), Vector(0, 0, 1), 1.4732), False)
sketch12.addGeometry(Part.Circle(Vector(71.136099, -43.791395, 0), Vector(0, 0, 1), 1.4732), False)
sketch12.addGeometry(Part.Circle(Vector(83.963099, -40.159195, 0), Vector(0, 0, 1), 1.4732), False)
sketch12.addConstraint(Sketcher.Constraint("Coincident", 0, 2, 1, 1))
sketch12.addConstraint(Sketcher.Constraint("Coincident", 1, 2, 2, 1))
sketch12.addConstraint(Sketcher.Constraint("Coincident", 2, 2, 3, 1))
sketch12.addConstraint(Sketcher.Constraint("Coincident", 3, 2, 0, 1))
sketch12.addConstraint(Sketcher.Constraint("Vertical", 0))
sketch12.addConstraint(Sketcher.Constraint("Horizontal", 1))
sketch12.addConstraint(Sketcher.Constraint("Vertical", 2))
sketch12.addConstraint(Sketcher.Constraint("Horizontal", 3))
sketch12.addConstraint(Sketcher.Constraint("Equal", 4, 5))
sketch12.addConstraint(Sketcher.Constraint("Equal", 5, 6))
sketch12.addConstraint(Sketcher.Constraint("Equal", 7, 8))
sketch12.addConstraint(Sketcher.Constraint("Equal", 6, 9))
sketch12.addConstraint(Sketcher.Constraint("Equal", 9, 10))
sketch12.addConstraint(Sketcher.Constraint("Equal", 8, 11))
sketch12.addConstraint(Sketcher.Constraint("Equal", 10, 12))
sketch12.addConstraint(Sketcher.Constraint("Equal", 12, 13))
sketch12.addConstraint(Sketcher.Constraint("Equal", 11, 14))
sketch12.addConstraint(Sketcher.Constraint("Equal", 14, 16))
sketch12.addConstraint(Sketcher.Constraint("Equal", 13, 17))
sketch12.addConstraint(Sketcher.Constraint("Equal", 17, 18))
sketch12.addConstraint(Sketcher.Constraint("Equal", 16, 19))
sketch12.addConstraint(Sketcher.Constraint("Equal", 18, 20))
sketch12.addConstraint(Sketcher.Constraint("Equal", 20, 21))
sketch12.addConstraint(Sketcher.Constraint("Equal", 21, 22))
sketch12.addConstraint(Sketcher.Constraint("Horizontal", 5, 3, 9, 3))
sketch12.addConstraint(Sketcher.Constraint("Horizontal", 4, 3, 10, 3))
sketch12.addConstraint(Sketcher.Constraint("Horizontal", 8, 3, 11, 3))
sketch12.addConstraint(Sketcher.Constraint("Horizontal", 6, 3, 12, 3))
sketch12.addConstraint(Sketcher.Constraint("Horizontal", 14, 3, 19, 3))
sketch12.addConstraint(Sketcher.Constraint("Horizontal", 13, 3, 20, 3))
sketch12.addConstraint(Sketcher.Constraint("Horizontal", 18, 3, 21, 3))
sketch12.addConstraint(Sketcher.Constraint("Horizontal", 17, 3, 22, 3))
sketch12.addConstraint(Sketcher.Constraint("Vertical", 6, 3, 13, 3))
sketch12.addConstraint(Sketcher.Constraint("Vertical", 8, 3, 14, 3))
sketch12.addConstraint(Sketcher.Constraint("Vertical", 7, 3, 15, 3))
sketch12.addConstraint(Sketcher.Constraint("Vertical", 15, 3, 16, 3))
sketch12.addConstraint(Sketcher.Constraint("Vertical", 4, 3, 17, 3))
sketch12.addConstraint(Sketcher.Constraint("Vertical", 5, 3, 18, 3))
sketch12.addConstraint(Sketcher.Constraint("Vertical", 11, 3, 19, 3))
sketch12.addConstraint(Sketcher.Constraint("Vertical", 12, 3, 20, 3))
sketch12.addConstraint(Sketcher.Constraint("Vertical", 9, 3, 21, 3))
sketch12.addConstraint(Sketcher.Constraint("Vertical", 10, 3, 22, 3))
sketch12.addConstraint(Sketcher.Constraint("Equal", 3, 0))
sketch12.addConstraint(Sketcher.Constraint("Diameter", 15, Q("0.5 in")))
sketch12.addConstraint(Sketcher.Constraint("Diameter", 4, Q("0.116 in")))
sketch12.addConstraint(Sketcher.Constraint("Diameter", 7, Q("0.086 in")))
sketch12.addConstraint(Sketcher.Constraint("DistanceX", 1, 1, 1, 2, Q("2.5 in")))
sketch12.addConstraint(Sketcher.Constraint("DistanceX", 4, 3, 7, 3, Q("1 in")))
sketch12.addConstraint(Sketcher.Constraint("DistanceX", 7, 3, 10, 3, Q("1 in")))
sketch12.addConstraint(Sketcher.Constraint("DistanceY", 15, 3, 17, 3, Q("1 in")))
sketch12.addConstraint(Sketcher.Constraint("DistanceY", 4, 3, 7, 3, Q("0.63 in")))
sketch12.addConstraint(Sketcher.Constraint("DistanceX", 8, 3, 7, 3, Q("0.32 in")))
sketch12.addConstraint(Sketcher.Constraint("DistanceY", 6, 3, 8, 3, Q("0.31 in")))
sketch12.addConstraint(Sketcher.Constraint("DistanceX", 5, 3, 9, 3, Q("0.99 in")))
sketch12.addConstraint(Sketcher.Constraint("DistanceX", 7, 3, 11, 3, Q("0.32 in")))
sketch12.addConstraint(Sketcher.Constraint("DistanceY", 8, 3, 13, 3, Q("0.68 in")))
sketch12.addConstraint(Sketcher.Constraint("DistanceY", 8, 3, 14, 3, Q("0.37 in")))
sketch12.addConstraint(Sketcher.Constraint("DistanceY", 7, 3, 15, 3, Q("0.37 in")))
sketch12.addConstraint(Sketcher.Constraint("DistanceY", 15, 3, 16, 3, Q("0.37 in")))
sketch12.addConstraint(Sketcher.Constraint("DistanceX", 0, 2, 4, 3, Q("0.25 in")))
sketch12.addConstraint(Sketcher.Constraint("DistanceY", 0, 2, 4, 3, Q("0.25 in")))
sketch12.addConstraint(Sketcher.Constraint("DistanceX", 4, 3, 5, 3, Q("0.505 in")))
sketch12.addConstraint(Sketcher.Constraint("DistanceY", 4, 3, 5, 3, Q("0.143 in")))
sketch12.addConstraint(Sketcher.Constraint("DistanceX", 6, 3, 5, 3, Q("0.362 in")))
sketch12.addConstraint(Sketcher.Constraint("DistanceY", 5, 3, 6, 3, Q("0.362 in")))
sketch12.addConstraint(Sketcher.Constraint("DistanceX", 9, 3, 12, 3, Q("0.362 in")))
sketch12.addConstraint(Sketcher.Constraint("DistanceY", 13, 3, 18, 3, Q("0.362 in")))
sketch12.addConstraint(Sketcher.Constraint("DistanceX", -1, 1, 4, 3, 33.163099))
sketch12.addConstraint(Sketcher.Constraint("DistanceY", 4, 3, -1, 1, 90.959195))
pad7 = body4.newObject("PartDesign::Pad", "Pad006")
pad7.Profile = sketch12
pad7.Length = Q("0.125 in")

doc.recompute()
